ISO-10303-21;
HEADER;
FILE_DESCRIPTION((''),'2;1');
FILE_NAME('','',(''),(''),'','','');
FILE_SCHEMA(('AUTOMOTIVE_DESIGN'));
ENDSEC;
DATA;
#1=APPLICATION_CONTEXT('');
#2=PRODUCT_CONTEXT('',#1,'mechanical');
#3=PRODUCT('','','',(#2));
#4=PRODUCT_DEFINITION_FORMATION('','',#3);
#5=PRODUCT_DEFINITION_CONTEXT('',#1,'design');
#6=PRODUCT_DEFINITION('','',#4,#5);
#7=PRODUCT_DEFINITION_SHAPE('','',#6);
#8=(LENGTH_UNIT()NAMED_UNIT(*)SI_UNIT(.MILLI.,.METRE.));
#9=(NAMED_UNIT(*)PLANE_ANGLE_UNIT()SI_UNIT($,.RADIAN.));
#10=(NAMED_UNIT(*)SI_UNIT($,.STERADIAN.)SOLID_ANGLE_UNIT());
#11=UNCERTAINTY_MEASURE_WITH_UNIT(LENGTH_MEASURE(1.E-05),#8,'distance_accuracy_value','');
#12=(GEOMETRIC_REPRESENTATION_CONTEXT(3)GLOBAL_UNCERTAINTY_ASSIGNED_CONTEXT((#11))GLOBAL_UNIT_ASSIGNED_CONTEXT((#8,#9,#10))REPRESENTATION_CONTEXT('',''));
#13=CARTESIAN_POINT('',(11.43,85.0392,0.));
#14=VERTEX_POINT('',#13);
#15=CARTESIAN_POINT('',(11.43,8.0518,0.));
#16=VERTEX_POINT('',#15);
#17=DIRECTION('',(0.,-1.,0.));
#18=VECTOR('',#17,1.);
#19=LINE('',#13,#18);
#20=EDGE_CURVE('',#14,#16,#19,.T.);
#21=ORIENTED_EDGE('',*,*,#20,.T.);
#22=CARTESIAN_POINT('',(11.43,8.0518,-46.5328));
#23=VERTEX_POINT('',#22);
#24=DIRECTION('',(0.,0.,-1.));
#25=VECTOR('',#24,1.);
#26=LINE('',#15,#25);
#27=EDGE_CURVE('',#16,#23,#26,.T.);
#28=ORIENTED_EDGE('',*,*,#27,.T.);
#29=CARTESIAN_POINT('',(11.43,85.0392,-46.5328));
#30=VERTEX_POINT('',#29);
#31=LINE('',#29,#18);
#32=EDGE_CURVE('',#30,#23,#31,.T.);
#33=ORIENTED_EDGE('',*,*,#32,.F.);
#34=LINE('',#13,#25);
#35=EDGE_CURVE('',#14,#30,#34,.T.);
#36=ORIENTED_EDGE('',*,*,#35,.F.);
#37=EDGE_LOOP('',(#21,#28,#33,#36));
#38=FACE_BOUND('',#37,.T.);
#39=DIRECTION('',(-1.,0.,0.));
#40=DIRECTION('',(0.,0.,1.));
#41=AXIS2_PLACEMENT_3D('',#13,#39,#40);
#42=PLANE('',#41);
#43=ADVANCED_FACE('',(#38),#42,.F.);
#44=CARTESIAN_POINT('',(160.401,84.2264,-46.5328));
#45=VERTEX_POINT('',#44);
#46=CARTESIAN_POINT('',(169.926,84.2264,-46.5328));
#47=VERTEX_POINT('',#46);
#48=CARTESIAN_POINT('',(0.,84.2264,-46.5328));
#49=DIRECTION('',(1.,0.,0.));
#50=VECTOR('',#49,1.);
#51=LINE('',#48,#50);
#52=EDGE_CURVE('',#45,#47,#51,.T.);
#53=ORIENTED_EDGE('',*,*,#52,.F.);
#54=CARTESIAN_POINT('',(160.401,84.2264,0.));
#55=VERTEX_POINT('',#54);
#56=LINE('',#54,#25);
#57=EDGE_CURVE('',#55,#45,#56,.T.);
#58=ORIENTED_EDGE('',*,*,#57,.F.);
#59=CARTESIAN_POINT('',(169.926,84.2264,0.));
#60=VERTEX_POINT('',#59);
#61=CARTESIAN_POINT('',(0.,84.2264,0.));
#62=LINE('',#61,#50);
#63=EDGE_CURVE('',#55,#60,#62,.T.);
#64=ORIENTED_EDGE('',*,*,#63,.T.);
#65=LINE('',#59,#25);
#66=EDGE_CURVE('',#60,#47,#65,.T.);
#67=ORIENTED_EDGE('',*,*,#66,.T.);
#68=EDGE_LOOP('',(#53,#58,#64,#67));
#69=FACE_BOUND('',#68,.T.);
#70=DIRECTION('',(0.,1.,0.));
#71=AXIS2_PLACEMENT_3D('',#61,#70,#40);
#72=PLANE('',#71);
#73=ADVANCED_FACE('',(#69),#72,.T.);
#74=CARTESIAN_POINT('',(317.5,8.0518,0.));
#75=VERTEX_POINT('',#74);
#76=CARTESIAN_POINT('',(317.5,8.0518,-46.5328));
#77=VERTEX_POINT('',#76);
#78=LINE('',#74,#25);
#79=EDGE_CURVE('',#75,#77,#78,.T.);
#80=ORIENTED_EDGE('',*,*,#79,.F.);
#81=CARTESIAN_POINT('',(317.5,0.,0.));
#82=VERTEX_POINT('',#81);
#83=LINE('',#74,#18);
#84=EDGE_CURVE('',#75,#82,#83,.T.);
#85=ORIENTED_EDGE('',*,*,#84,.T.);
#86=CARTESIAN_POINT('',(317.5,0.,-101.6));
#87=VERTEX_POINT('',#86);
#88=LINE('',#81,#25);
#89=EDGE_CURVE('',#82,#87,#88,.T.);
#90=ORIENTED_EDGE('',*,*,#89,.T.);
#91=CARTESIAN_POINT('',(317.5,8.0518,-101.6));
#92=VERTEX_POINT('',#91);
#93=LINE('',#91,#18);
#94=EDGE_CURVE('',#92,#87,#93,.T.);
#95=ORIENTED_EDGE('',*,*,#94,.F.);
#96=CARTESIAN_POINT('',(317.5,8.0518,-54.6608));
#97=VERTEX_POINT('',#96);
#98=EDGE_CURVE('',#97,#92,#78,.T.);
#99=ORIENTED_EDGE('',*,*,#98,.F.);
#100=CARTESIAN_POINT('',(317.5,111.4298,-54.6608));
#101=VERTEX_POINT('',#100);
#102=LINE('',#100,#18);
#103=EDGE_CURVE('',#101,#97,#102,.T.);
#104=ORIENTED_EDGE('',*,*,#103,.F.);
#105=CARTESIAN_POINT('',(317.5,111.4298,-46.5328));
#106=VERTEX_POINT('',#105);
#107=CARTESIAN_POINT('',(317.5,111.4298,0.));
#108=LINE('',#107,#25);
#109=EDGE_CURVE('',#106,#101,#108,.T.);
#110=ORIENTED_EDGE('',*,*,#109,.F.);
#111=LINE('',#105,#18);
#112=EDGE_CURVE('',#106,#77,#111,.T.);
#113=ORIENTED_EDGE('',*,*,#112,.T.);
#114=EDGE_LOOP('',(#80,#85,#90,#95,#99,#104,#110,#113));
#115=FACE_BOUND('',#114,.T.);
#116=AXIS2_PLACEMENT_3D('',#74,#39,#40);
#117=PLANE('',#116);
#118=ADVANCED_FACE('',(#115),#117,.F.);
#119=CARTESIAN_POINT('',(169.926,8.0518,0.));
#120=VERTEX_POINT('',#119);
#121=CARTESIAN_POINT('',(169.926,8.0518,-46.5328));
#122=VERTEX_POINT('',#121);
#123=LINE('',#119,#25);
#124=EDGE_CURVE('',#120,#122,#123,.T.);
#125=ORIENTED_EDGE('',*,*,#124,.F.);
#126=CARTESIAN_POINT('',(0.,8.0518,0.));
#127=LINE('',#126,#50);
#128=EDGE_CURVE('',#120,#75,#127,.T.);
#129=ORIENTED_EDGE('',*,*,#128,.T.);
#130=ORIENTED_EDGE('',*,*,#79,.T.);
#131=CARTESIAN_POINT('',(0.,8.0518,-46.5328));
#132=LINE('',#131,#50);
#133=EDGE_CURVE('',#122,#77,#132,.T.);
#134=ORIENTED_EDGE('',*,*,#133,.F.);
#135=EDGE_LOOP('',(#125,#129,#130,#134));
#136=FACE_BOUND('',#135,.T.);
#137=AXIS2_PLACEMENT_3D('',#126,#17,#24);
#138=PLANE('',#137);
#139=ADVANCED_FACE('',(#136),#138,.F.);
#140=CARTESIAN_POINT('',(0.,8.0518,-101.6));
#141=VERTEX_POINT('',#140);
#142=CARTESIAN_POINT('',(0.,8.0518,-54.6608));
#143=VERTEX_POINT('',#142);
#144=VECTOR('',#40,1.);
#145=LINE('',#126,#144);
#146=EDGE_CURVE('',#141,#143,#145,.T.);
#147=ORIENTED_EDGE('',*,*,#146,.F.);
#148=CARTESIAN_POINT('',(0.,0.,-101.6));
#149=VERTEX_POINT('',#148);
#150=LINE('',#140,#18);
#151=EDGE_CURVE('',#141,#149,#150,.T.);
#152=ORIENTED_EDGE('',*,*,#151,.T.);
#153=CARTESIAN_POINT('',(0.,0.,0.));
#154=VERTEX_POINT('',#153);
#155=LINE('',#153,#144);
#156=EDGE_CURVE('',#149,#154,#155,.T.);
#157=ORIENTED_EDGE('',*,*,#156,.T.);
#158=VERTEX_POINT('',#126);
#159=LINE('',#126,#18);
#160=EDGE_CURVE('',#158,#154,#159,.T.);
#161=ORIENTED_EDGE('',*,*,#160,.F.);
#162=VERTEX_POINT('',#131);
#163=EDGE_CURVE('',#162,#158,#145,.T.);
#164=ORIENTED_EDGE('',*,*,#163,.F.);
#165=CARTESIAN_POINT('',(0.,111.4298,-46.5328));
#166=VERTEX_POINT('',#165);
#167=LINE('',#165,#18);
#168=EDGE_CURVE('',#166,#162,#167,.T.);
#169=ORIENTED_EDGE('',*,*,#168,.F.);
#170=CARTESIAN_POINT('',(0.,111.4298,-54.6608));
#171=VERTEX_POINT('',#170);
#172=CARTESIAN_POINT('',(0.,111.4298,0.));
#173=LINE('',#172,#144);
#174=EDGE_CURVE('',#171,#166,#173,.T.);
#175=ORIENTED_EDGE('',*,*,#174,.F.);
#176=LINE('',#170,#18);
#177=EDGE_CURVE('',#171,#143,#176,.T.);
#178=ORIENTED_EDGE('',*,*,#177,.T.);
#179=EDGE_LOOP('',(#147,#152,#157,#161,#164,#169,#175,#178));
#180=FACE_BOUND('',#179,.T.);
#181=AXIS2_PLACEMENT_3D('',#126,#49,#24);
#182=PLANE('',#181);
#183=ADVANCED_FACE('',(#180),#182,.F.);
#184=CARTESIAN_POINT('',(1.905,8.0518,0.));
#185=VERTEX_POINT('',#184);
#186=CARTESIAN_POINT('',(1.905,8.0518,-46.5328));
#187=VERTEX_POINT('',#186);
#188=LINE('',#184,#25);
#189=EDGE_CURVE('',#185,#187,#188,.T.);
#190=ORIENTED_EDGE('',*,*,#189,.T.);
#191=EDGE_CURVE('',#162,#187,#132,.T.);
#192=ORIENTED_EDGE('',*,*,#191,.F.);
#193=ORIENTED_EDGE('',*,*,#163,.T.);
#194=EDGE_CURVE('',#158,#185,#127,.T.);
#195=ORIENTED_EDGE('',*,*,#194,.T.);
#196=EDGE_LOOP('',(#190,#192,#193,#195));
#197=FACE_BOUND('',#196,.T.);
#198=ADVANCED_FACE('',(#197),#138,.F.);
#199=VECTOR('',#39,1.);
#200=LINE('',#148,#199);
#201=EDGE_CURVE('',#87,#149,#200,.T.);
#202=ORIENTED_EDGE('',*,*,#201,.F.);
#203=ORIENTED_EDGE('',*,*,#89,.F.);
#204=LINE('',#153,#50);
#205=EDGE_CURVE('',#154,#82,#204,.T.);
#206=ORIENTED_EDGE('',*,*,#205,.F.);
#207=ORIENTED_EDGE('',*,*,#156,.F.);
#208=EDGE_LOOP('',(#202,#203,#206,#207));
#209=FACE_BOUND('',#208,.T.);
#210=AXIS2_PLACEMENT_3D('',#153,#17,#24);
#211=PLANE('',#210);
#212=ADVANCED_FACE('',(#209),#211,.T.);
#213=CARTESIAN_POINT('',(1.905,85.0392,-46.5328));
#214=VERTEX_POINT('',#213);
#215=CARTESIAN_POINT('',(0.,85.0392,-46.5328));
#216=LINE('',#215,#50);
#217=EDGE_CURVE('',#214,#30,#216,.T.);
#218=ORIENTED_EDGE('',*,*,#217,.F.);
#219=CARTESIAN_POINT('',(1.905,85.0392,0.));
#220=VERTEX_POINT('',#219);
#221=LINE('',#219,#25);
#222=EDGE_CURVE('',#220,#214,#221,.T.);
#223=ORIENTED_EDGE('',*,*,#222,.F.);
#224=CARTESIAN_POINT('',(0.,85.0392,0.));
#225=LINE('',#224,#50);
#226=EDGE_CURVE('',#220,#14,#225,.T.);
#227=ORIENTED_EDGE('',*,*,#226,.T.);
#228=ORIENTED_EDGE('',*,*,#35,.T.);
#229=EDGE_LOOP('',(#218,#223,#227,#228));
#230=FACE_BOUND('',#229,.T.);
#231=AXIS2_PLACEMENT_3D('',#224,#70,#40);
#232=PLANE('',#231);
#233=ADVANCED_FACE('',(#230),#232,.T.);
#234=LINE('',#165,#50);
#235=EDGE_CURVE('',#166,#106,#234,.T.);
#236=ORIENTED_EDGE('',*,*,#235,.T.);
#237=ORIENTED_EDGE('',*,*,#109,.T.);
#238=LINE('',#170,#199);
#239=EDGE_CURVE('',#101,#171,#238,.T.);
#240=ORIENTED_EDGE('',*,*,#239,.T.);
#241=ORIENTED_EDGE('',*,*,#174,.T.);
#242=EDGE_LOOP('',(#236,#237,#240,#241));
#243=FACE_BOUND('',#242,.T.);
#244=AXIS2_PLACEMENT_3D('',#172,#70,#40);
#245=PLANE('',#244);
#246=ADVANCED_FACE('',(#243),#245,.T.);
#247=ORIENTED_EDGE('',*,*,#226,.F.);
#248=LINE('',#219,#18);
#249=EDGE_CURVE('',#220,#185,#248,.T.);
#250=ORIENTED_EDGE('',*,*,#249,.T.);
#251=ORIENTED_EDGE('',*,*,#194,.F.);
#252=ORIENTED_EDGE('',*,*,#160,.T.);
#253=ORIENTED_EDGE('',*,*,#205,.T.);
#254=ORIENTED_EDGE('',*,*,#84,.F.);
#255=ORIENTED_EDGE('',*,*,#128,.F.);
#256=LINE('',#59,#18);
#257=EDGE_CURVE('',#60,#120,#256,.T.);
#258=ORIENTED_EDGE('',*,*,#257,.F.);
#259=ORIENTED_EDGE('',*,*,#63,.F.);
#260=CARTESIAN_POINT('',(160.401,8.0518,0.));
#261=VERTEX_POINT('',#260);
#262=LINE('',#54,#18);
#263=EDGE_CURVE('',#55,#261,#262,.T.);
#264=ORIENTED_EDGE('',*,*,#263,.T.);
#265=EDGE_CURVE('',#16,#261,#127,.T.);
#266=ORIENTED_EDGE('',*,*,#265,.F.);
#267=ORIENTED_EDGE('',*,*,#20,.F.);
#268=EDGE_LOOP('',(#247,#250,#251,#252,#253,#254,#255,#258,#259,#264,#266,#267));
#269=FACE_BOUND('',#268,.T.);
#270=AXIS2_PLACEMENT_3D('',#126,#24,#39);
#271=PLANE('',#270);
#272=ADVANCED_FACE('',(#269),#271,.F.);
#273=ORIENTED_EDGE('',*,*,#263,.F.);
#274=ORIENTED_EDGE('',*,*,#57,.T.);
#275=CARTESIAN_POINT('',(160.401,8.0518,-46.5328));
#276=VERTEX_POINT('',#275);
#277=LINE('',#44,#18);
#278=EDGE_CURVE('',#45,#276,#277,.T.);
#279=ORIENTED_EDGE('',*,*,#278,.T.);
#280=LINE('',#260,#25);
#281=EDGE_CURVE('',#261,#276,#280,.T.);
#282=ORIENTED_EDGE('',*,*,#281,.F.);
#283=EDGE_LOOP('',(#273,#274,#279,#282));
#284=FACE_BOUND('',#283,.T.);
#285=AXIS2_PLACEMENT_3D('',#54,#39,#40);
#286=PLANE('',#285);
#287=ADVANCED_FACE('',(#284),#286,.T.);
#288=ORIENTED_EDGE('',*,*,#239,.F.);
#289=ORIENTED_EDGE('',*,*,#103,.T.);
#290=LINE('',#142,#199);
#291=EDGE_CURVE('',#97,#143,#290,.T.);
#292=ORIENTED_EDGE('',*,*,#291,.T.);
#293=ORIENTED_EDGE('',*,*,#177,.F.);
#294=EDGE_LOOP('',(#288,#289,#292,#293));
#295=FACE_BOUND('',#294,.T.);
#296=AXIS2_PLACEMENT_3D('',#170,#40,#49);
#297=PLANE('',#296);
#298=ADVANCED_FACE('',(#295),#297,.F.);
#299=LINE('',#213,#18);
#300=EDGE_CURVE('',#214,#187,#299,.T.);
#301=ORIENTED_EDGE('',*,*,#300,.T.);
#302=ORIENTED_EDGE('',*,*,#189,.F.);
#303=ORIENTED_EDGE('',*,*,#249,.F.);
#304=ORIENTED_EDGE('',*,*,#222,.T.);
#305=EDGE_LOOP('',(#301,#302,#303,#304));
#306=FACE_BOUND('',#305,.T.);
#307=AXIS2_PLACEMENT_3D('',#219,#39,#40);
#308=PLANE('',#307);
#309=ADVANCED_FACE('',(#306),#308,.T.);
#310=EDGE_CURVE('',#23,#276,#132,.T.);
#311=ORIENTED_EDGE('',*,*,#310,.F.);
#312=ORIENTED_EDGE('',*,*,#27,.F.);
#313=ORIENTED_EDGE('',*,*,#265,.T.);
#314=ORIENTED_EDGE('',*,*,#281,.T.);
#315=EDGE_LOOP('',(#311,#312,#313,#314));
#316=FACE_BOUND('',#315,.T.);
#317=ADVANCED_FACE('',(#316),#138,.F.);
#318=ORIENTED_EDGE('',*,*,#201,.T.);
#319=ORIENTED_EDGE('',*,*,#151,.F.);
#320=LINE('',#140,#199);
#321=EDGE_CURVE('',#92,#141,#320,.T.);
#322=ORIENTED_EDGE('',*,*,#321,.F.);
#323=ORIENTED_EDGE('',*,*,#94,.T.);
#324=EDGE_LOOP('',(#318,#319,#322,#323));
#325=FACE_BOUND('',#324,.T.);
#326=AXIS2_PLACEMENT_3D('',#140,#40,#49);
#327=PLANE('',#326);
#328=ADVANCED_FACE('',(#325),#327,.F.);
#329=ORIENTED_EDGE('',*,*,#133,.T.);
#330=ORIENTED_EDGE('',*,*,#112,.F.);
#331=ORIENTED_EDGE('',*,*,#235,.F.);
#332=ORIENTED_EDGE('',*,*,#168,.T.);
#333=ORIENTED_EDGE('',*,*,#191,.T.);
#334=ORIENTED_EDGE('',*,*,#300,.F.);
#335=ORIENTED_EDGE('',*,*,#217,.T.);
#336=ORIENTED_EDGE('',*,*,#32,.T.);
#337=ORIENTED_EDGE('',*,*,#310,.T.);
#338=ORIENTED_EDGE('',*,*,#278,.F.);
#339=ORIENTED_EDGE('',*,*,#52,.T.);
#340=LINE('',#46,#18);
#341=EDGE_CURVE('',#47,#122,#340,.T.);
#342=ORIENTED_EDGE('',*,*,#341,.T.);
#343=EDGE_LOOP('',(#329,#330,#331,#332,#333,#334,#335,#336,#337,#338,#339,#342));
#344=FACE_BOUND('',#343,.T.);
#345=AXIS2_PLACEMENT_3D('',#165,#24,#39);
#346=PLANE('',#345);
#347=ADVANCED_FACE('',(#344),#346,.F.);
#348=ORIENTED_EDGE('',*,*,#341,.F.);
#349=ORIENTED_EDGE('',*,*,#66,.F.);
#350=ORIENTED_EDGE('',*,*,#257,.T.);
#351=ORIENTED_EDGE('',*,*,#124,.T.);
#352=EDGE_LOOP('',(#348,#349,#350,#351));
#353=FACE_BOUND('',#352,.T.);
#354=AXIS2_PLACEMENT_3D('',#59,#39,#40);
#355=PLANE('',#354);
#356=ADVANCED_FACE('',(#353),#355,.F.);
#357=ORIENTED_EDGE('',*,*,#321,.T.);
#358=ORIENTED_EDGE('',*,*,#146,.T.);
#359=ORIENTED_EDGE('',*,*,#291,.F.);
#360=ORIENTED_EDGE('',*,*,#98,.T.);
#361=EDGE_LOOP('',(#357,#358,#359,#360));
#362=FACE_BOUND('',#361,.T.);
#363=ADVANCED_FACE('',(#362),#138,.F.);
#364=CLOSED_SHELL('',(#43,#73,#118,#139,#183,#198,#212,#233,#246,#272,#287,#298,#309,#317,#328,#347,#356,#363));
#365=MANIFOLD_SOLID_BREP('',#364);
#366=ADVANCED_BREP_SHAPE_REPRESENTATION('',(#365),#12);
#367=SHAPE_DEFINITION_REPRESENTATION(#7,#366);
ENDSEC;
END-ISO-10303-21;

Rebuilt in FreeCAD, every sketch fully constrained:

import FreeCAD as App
import Part
import Sketcher
Q = App.Units.Quantity


def add_polygon(sketch, points):
    """Adds a closed chain of lines whose ends are joined by coincident constraints."""
    first, n = sketch.GeometryCount, len(points)
    for a, b in zip(points, points[1:] + points[:1]):
        sketch.addGeometry(Part.LineSegment(App.Vector(*a, 0), App.Vector(*b, 0)), False)
    for i in range(n):
        sketch.addConstraint(Sketcher.Constraint("Coincident", first + i, 2, first + (i + 1) % n, 1))

doc = App.newDocument("Part")
body = doc.addObject("PartDesign::Body", "Body")

# Sketch on XZ plane
sketch1 = body.newObject("Sketcher::SketchObject", "Sketch")
sketch1.AttachmentSupport = (doc.getObject("XZ_Plane"), [""])
sketch1.MapMode = "FlatFace"
add_polygon(sketch1, [(0, -102), (0, 0), (318, 0), (318, -102)])  # lines 0-3
sketch1.addConstraint([
    Sketcher.Constraint("Vertical", 0),
    Sketcher.Constraint("Horizontal", 1),
    Sketcher.Constraint("Vertical", 2),
    Sketcher.Constraint("Horizontal", 3),
    Sketcher.Constraint("Coincident", 0, 2, -1, 1),
    Sketcher.Constraint("DistanceY", 0, 1, 0, 2, Q("4 in")),
    Sketcher.Constraint("DistanceX", 1, 1, 1, 2, Q("12.5 in")),
])
pad1 = body.newObject("PartDesign::Pad", "Pad")
pad1.Profile = sketch1
pad1.Length = Q("0.317 in")
pad1.Reversed = True

# Sketch on XZ plane
sketch2 = body.newObject("Sketcher::SketchObject", "Sketch001")
sketch2.AttachmentSupport = (doc.getObject("XZ_Plane"), [""])
sketch2.MapMode = "FlatFace"
sketch2.AttachmentOffset = App.Placement(App.Vector(0, 0, -0.317 * 25.4), App.Rotation())
add_polygon(sketch2, [(0, -55), (0, -47), (318, -47), (318, -55)])  # lines 0-3
sketch2.addConstraint([
    Sketcher.Constraint("Vertical", 0),
    Sketcher.Constraint("Horizontal", 1),
    Sketcher.Constraint("Vertical", 2),
    Sketcher.Constraint("Horizontal", 3),
    Sketcher.Constraint("PointOnObject", 0, 2, -2),
    Sketcher.Constraint("DistanceX", 1, 1, 1, 2, Q("12.5 in")),
    Sketcher.Constraint("DistanceY", 0, 1, 0, 2, Q("0.32 in")),
    Sketcher.Constraint("DistanceY", 0, 2, -1, 1, Q("1.832 in")),
])
pad2 = body.newObject("PartDesign::Pad", "Pad001")
pad2.Profile = sketch2
pad2.Length = Q("4.07 in")
pad2.Reversed = True

# Sketch on XZ plane
sketch3 = body.newObject("Sketcher::SketchObject", "Sketch002")
sketch3.AttachmentSupport = (doc.getObject("XZ_Plane"), [""])
sketch3.MapMode = "FlatFace"
sketch3.AttachmentOffset = App.Placement(App.Vector(0, 0, -0.317 * 25.4), App.Rotation())
add_polygon(sketch3, [(2, -47), (2, 0), (11, 0), (11, -47)])  # lines 0-3
sketch3.addConstraint([
    Sketcher.Constraint("Vertical", 0),
    Sketcher.Constraint("Horizontal", 1),
    Sketcher.Constraint("Vertical", 2),
    Sketcher.Constraint("Horizontal", 3),
    Sketcher.Constraint("PointOnObject", 0, 2, -1),
    Sketcher.Constraint("DistanceX", 1, 1, 1, 2, Q("0.375 in")),
    Sketcher.Constraint("DistanceY", 0, 1, 0, 2, Q("1.832 in")),
    Sketcher.Constraint("DistanceX", -1, 1, 1, 2, Q("0.45 in")),
])
pad3 = body.newObject("PartDesign::Pad", "Pad002")
pad3.Profile = sketch3
pad3.Length = Q("3.031 in")
pad3.Reversed = True

# Sketch on XZ plane
sketch4 = body.newObject("Sketcher::SketchObject", "Sketch003")
sketch4.AttachmentSupport = (doc.getObject("XZ_Plane"), [""])
sketch4.MapMode = "FlatFace"
sketch4.AttachmentOffset = App.Placement(App.Vector(0, 0, -0.317 * 25.4), App.Rotation())
add_polygon(sketch4, [(160, -47), (160, 0), (170, 0), (170, -47)])  # lines 0-3
sketch4.addConstraint([
    Sketcher.Constraint("Vertical", 0),
    Sketcher.Constraint("Horizontal", 1),
    Sketcher.Constraint("Vertical", 2),
    Sketcher.Constraint("Horizontal", 3),
    Sketcher.Constraint("PointOnObject", 0, 2, -1),
    Sketcher.Constraint("DistanceX", 1, 1, 1, 2, Q("0.375 in")),
    Sketcher.Constraint("DistanceY", 0, 1, 0, 2, Q("1.832 in")),
    Sketcher.Constraint("DistanceX", -1, 1, 1, 2, Q("6.69 in")),
])
pad4 = body.newObject("PartDesign::Pad", "Pad003")
pad4.Profile = sketch4
pad4.Length = Q("2.999 in")
pad4.Reversed = True

doc.recompute()
